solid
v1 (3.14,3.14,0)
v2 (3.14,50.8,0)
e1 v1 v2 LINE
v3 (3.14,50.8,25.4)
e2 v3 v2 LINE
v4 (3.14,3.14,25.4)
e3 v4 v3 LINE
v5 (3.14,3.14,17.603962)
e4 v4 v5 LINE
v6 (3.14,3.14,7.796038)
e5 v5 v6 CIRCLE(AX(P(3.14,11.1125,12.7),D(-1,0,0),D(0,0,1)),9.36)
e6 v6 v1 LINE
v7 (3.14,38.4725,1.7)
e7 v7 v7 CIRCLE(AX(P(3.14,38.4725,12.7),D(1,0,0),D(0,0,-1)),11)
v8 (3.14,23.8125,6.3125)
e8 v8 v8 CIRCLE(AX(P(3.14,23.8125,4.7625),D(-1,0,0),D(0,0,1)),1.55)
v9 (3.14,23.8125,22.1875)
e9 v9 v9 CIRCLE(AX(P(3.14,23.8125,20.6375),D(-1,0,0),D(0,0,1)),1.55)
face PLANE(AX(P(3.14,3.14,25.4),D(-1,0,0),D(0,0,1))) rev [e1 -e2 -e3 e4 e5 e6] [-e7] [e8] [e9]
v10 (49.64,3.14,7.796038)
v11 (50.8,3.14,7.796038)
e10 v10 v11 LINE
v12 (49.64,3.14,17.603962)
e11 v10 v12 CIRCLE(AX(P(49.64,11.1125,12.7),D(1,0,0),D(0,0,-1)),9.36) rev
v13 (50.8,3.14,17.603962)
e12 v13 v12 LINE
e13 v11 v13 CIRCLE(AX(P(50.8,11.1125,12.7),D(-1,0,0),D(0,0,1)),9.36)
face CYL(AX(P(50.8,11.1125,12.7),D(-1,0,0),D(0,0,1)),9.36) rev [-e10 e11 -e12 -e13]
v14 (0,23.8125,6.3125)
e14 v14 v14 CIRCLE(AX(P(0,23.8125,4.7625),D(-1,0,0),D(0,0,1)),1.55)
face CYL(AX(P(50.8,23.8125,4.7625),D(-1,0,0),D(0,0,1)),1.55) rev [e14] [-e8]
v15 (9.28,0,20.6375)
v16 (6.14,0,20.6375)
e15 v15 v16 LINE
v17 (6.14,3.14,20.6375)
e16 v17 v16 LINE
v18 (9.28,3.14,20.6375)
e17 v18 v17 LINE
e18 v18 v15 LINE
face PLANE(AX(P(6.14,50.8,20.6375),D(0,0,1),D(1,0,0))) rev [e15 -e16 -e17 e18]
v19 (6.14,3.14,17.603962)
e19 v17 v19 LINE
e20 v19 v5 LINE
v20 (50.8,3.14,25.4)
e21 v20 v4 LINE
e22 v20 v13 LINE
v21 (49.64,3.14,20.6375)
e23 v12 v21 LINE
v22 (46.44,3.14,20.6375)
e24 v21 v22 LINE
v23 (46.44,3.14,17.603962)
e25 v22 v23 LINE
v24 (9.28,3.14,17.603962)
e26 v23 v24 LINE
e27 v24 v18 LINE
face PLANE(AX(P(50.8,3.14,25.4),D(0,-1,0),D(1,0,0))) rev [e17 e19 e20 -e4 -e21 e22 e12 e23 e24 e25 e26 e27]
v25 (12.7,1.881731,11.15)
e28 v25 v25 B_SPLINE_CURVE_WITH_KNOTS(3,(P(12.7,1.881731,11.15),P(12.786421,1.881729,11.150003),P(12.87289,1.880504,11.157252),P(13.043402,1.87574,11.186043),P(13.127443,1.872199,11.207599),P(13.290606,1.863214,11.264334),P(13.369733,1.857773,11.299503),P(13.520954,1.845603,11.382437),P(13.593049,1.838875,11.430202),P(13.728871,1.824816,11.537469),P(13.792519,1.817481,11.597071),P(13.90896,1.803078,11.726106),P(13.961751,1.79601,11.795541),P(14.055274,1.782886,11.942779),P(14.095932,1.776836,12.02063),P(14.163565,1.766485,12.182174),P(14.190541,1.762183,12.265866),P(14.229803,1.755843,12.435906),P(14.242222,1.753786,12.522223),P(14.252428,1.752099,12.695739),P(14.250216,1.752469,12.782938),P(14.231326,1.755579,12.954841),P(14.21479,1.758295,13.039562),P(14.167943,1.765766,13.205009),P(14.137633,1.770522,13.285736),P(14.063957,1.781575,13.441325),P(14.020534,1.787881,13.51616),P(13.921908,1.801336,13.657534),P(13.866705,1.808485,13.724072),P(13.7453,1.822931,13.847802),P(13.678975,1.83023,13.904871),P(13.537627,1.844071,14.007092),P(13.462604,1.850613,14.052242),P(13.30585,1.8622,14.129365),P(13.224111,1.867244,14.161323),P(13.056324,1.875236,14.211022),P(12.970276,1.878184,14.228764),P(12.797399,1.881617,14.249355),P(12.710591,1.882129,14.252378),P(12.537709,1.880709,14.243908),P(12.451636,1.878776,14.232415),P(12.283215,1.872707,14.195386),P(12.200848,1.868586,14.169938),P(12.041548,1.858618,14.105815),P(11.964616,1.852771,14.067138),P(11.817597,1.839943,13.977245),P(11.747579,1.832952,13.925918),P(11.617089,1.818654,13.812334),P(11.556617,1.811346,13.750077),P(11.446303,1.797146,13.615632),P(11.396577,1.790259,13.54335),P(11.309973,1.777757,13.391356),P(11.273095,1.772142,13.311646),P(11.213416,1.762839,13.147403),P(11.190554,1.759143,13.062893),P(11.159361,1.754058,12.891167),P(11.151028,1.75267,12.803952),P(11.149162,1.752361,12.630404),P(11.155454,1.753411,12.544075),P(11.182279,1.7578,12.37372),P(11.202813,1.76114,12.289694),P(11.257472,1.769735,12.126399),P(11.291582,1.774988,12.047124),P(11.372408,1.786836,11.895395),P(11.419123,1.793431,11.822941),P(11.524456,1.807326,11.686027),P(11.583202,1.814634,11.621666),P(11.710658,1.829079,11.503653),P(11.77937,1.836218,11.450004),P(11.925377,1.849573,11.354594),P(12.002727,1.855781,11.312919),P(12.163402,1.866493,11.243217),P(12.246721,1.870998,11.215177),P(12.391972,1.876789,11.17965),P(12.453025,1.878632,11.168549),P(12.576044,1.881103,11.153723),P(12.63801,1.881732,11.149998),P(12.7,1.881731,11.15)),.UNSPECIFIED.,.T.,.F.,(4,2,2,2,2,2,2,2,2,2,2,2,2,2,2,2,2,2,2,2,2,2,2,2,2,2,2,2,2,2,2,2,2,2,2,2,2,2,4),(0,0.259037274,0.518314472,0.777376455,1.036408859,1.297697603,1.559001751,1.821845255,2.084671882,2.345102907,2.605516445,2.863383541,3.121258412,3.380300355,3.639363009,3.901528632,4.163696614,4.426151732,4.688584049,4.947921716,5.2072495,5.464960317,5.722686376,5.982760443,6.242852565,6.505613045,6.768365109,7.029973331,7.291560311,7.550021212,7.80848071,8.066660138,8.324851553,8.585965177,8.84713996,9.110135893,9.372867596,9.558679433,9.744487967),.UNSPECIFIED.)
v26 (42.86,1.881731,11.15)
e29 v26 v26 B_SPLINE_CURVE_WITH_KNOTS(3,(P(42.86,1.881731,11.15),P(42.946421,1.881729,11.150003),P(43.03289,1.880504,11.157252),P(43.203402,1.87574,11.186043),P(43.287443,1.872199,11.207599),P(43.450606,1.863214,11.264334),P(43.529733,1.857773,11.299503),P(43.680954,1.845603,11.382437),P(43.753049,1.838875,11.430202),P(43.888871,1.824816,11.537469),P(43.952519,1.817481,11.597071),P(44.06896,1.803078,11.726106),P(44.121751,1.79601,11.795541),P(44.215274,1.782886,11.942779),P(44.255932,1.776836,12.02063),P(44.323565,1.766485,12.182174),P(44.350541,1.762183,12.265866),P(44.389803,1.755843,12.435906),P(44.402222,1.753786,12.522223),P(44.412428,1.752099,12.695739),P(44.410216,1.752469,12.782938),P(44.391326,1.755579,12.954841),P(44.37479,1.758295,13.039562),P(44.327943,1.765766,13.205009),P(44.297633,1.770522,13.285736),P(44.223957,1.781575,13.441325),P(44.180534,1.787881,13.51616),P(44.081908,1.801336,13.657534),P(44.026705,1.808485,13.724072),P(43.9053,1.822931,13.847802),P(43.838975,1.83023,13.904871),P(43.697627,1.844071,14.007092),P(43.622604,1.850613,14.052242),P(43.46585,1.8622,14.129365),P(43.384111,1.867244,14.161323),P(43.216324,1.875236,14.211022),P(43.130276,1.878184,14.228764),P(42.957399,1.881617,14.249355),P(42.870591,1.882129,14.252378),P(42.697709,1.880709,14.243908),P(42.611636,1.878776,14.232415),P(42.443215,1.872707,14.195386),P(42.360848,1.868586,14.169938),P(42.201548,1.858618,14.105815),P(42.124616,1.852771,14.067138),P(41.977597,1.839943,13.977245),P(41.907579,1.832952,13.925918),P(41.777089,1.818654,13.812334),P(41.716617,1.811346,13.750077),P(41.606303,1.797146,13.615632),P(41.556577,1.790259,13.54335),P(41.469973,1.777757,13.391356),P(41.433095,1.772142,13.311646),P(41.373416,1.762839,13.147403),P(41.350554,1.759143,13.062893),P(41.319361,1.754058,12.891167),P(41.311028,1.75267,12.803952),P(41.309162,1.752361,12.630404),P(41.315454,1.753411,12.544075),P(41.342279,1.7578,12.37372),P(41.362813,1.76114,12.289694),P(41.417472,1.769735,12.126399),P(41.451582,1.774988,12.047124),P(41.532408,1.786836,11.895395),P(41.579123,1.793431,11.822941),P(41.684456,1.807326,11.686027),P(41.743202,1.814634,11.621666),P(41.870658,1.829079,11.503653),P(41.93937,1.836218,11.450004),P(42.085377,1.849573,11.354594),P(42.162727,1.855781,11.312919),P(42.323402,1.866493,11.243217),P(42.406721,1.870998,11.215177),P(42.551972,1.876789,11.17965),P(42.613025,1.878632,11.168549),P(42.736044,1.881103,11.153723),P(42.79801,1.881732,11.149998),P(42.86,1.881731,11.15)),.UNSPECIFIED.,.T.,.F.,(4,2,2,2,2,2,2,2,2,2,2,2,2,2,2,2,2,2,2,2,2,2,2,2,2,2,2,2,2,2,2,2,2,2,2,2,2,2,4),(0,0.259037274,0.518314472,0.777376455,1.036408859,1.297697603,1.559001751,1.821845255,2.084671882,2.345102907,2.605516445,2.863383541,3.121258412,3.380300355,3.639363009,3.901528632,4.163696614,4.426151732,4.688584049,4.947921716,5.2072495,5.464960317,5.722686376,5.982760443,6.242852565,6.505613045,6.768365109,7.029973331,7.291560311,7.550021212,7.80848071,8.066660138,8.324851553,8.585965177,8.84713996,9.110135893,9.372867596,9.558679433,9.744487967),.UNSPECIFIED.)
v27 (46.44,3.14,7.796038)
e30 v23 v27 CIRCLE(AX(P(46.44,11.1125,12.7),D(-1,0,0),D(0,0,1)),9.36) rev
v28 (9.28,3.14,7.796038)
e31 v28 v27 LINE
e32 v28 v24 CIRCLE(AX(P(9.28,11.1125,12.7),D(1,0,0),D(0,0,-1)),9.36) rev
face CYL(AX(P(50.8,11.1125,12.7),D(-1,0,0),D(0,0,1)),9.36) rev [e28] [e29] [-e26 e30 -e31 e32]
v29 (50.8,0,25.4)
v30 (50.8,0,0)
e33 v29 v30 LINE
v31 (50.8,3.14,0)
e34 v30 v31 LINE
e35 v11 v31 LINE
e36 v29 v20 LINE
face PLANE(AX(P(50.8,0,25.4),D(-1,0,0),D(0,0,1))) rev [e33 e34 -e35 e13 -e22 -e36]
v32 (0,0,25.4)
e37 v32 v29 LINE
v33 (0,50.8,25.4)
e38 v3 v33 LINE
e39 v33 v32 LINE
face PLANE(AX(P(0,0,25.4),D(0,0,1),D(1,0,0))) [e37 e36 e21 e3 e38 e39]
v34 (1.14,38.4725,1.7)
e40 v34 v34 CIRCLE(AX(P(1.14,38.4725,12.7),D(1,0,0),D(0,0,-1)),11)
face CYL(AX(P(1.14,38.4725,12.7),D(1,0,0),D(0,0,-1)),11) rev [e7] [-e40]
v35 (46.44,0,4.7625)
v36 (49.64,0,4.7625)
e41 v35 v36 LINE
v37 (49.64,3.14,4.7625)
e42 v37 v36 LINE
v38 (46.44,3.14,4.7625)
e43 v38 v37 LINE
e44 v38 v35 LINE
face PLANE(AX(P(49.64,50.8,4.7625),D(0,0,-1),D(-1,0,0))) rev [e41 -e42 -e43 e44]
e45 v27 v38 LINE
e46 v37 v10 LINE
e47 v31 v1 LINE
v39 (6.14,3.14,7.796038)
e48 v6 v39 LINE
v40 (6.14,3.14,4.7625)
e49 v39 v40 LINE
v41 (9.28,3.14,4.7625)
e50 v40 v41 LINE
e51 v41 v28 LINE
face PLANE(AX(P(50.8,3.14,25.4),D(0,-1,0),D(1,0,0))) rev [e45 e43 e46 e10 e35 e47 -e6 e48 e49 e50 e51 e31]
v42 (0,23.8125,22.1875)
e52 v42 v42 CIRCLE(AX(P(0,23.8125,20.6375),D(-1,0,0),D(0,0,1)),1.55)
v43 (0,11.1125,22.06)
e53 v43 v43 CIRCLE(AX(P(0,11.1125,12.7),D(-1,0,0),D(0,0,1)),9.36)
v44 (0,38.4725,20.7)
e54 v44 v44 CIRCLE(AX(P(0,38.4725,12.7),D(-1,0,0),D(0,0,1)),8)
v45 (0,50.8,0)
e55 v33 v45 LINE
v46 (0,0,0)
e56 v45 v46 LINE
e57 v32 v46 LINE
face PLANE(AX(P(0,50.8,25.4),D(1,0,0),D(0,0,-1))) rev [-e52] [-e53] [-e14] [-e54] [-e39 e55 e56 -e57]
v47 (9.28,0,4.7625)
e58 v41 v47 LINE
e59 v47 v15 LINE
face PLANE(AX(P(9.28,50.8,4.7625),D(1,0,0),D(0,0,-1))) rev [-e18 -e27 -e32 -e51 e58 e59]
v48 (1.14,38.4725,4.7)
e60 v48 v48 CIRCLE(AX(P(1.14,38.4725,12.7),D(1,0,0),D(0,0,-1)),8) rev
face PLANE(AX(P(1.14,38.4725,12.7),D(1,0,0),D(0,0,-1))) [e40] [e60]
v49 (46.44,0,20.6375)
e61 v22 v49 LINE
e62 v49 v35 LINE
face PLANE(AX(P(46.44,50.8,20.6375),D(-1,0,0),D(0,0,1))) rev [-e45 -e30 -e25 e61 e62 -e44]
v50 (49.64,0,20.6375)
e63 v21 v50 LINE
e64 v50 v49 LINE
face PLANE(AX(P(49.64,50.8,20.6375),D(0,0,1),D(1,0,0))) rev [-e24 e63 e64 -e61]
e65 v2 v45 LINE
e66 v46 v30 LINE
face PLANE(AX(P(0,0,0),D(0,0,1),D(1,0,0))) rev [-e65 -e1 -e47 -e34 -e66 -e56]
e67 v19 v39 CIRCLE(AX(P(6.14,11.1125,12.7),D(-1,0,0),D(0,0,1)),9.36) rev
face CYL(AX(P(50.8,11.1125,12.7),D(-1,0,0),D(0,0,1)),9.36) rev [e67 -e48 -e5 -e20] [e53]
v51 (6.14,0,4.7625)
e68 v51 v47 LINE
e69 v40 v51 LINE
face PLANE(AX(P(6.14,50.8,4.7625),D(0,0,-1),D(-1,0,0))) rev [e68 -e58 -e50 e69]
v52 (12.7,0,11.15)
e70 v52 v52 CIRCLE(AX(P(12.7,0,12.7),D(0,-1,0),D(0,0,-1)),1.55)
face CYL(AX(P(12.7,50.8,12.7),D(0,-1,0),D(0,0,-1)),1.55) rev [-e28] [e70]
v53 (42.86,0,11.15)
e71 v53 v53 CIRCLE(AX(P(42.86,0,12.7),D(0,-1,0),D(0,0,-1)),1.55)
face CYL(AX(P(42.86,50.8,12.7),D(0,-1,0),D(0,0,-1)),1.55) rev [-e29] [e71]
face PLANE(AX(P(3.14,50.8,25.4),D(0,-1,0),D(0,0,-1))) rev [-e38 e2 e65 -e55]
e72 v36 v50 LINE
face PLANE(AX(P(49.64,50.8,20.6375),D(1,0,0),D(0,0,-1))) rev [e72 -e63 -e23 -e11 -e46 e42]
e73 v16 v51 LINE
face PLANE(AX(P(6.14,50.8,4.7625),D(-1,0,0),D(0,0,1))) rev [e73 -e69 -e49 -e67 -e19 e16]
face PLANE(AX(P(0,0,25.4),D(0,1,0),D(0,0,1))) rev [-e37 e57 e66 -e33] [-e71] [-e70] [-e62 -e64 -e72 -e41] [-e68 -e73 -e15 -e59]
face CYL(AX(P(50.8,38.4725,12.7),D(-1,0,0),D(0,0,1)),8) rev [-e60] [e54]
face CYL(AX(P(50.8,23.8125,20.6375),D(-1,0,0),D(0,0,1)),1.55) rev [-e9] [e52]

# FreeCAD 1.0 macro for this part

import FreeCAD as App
import Part
import Sketcher

doc = App.newDocument("Part")
body = doc.addObject("PartDesign::Body", "Body")

# Sketch on XY plane
sketch1 = body.newObject("Sketcher::SketchObject", "Sketch")
sketch1.AttachmentSupport = (doc.getObject("XY_Plane"), [""])
sketch1.MapMode = "FlatFace"
sketch1.addGeometry([
    Part.LineSegment(App.Vector(0, 0, 0), App.Vector(50.8, 0, 0)),  # 0
    Part.LineSegment(App.Vector(50.8, 0, 0), App.Vector(50.8, 3.14, 0)),  # 1
    Part.LineSegment(App.Vector(50.8, 3.14, 0), App.Vector(3.14, 3.14, 0)),  # 2
    Part.LineSegment(App.Vector(3.14, 3.14, 0), App.Vector(3.14, 50.8, 0)),  # 3
    Part.LineSegment(App.Vector(3.14, 50.8, 0), App.Vector(0, 50.8, 0)),  # 4
    Part.LineSegment(App.Vector(0, 50.8, 0), App.Vector(0, 0, 0)),  # 5
], False)
sketch1.addConstraint([
    Sketcher.Constraint("Coincident", 0, 2, 1, 1),
    Sketcher.Constraint("Coincident", 1, 2, 2, 1),
    Sketcher.Constraint("Coincident", 2, 2, 3, 1),
    Sketcher.Constraint("Coincident", 3, 2, 4, 1),
    Sketcher.Constraint("Coincident", 4, 2, 5, 1),
    Sketcher.Constraint("Coincident", 5, 2, 0, 1),
    Sketcher.Constraint("Horizontal", 0),
    Sketcher.Constraint("Vertical", 1),
    Sketcher.Constraint("Horizontal", 2),
    Sketcher.Constraint("Vertical", 3),
    Sketcher.Constraint("Horizontal", 4),
    Sketcher.Constraint("Vertical", 5),
    Sketcher.Constraint("Coincident", 5, 2, -1, 1),
    Sketcher.Constraint("Equal", 4, 1),
    Sketcher.Constraint("Equal", 2, 3),
    Sketcher.Constraint("DistanceX", 0, 1, 0, 2, 50.8),
    Sketcher.Constraint("DistanceX", 2, 2, 2, 1, 47.66),
])
pad1 = body.newObject("PartDesign::Pad", "Pad")
pad1.Profile = sketch1
pad1.Length = 25.4

# Sketch on YZ plane
sketch2 = body.newObject("Sketcher::SketchObject", "Sketch001")
sketch2.AttachmentSupport = (doc.getObject("YZ_Plane"), [""])
sketch2.MapMode = "FlatFace"
sketch2.addGeometry([
    Part.Circle(App.Vector(11.1125, 12.7, 0), App.Vector(0, 0, 1), 9.36),
    Part.Circle(App.Vector(38.4725, 12.7, 0), App.Vector(0, 0, 1), 8),
    Part.Circle(App.Vector(23.8125, 4.7625, 0), App.Vector(0, 0, 1), 1.55),
    Part.Circle(App.Vector(23.8125, 20.6375, 0), App.Vector(0, 0, 1), 1.55),
], False)
sketch2.addConstraint([
    Sketcher.Constraint("Equal", 2, 3),
    Sketcher.Constraint("Horizontal", 0, 3, 1, 3),
    Sketcher.Constraint("Vertical", 2, 3, 3, 3),
    Sketcher.Constraint("Diameter", 1, 16.0),
    Sketcher.Constraint("Diameter", 2, 3.1),
    Sketcher.Constraint("Diameter", 0, 18.72),
    Sketcher.Constraint("DistanceY", -1, 1, 0, 3, 12.7),
    Sketcher.Constraint("DistanceX", 0, 3, 2, 3, 12.7),
    Sketcher.Constraint("DistanceX", 0, 3, 1, 3, 27.36),
    Sketcher.Constraint("DistanceY", 2, 3, 3, 3, 15.875),
    Sketcher.Constraint("DistanceX", -1, 1, 0, 3, 11.1125),
    Sketcher.Constraint("DistanceY", -1, 1, 2, 3, 4.7625),
])
pocket1 = body.newObject("PartDesign::Pocket", "Pocket")
pocket1.Profile = sketch2
pocket1.Type = "ThroughAll"
pocket1.Reversed = True

# Sketch on YZ plane
sketch3 = body.newObject("Sketcher::SketchObject", "Sketch002")
sketch3.AttachmentSupport = (doc.getObject("YZ_Plane"), [""])
sketch3.MapMode = "FlatFace"
sketch3.AttachmentOffset = App.Placement(App.Vector(0, 0, 3.14), App.Rotation())
sketch3.addGeometry(Part.Circle(App.Vector(38.4725, 12.7, 0), App.Vector(0, 0, 1), 11), False)
sketch3.addConstraint([
    Sketcher.Constraint("Diameter", 0, 22.0),
    Sketcher.Constraint("DistanceY", -1, 1, 0, 3, 12.7),
    Sketcher.Constraint("DistanceX", -1, 1, 0, 3, 38.4725),
])
pocket2 = body.newObject("PartDesign::Pocket", "Pocket001")
pocket2.Profile = sketch3
pocket2.Length = 2

# Sketch on XZ plane
sketch4 = body.newObject("Sketcher::SketchObject", "Sketch003")
sketch4.AttachmentSupport = (doc.getObject("XZ_Plane"), [""])
sketch4.MapMode = "FlatFace"
sketch4.addGeometry([
    Part.Circle(App.Vector(12.7, 12.7, 0), App.Vector(0, 0, 1), 1.55),  # 0
    Part.Circle(App.Vector(42.86, 12.7, 0), App.Vector(0, 0, 1), 1.55),  # 1
    Part.LineSegment(App.Vector(6.14, 20.6375, 0), App.Vector(6.14, 4.7625, 0)),  # 2
    Part.LineSegment(App.Vector(6.14, 4.7625, 0), App.Vector(9.28, 4.7625, 0)),  # 3
    Part.LineSegment(App.Vector(9.28, 4.7625, 0), App.Vector(9.28, 20.6375, 0)),  # 4
    Part.LineSegment(App.Vector(9.28, 20.6375, 0), App.Vector(6.14, 20.6375, 0)),  # 5
    Part.LineSegment(App.Vector(46.44, 20.6375, 0), App.Vector(46.44, 4.7625, 0)),  # 6
    Part.LineSegment(App.Vector(46.44, 4.7625, 0), App.Vector(49.64, 4.7625, 0)),  # 7
    Part.LineSegment(App.Vector(49.64, 4.7625, 0), App.Vector(49.64, 20.6375, 0)),  # 8
    Part.LineSegment(App.Vector(49.64, 20.6375, 0), App.Vector(46.44, 20.6375, 0)),  # 9
], False)
sketch4.addConstraint([
    Sketcher.Constraint("Coincident", 2, 2, 3, 1),
    Sketcher.Constraint("Coincident", 3, 2, 4, 1),
    Sketcher.Constraint("Coincident", 4, 2, 5, 1),
    Sketcher.Constraint("Coincident", 5, 2, 2, 1),
    Sketcher.Constraint("Coincident", 6, 2, 7, 1),
    Sketcher.Constraint("Coincident", 7, 2, 8, 1),
    Sketcher.Constraint("Coincident", 8, 2, 9, 1),
    Sketcher.Constraint("Coincident", 9, 2, 6, 1),
    Sketcher.Constraint("Vertical", 2),
    Sketcher.Constraint("Horizontal", 3),
    Sketcher.Constraint("Vertical", 4),
    Sketcher.Constraint("Horizontal", 5),
    Sketcher.Constraint("Vertical", 6),
    Sketcher.Constraint("Horizontal", 7),
    Sketcher.Constraint("Vertical", 8),
    Sketcher.Constraint("Horizontal", 9),
    Sketcher.Constraint("Equal", 0, 1),
    Sketcher.Constraint("Horizontal", 0, 3, 1, 3),
    Sketcher.Constraint("Horizontal", 3, 2, 6, 2),
    Sketcher.Constraint("Horizontal", 5, 2, 8, 2),
    Sketcher.Constraint("Diameter", 0, 3.1),
    Sketcher.Constraint("DistanceX", 7, 1, 7, 2, 3.2),
    Sketcher.Constraint("DistanceX", 3, 1, 3, 2, 3.14),
    Sketcher.Constraint("DistanceX", -1, 1, 0, 3, 12.7),
    Sketcher.Constraint("DistanceY", -1, 1, 0, 3, 12.7),
    Sketcher.Constraint("DistanceX", 2, 2, 6, 2, 40.3),
    Sketcher.Constraint("DistanceY", 2, 2, 2, 1, 15.875),
    Sketcher.Constraint("DistanceX", -1, 1, 1, 3, 42.86),
    Sketcher.Constraint("DistanceX", -1, 1, 2, 2, 6.14),
    Sketcher.Constraint("DistanceY", -1, 1, 2, 2, 4.7625),
])
pocket3 = body.newObject("PartDesign::Pocket", "Pocket002")
pocket3.Profile = sketch4
pocket3.Type = "ThroughAll"

doc.recompute()
